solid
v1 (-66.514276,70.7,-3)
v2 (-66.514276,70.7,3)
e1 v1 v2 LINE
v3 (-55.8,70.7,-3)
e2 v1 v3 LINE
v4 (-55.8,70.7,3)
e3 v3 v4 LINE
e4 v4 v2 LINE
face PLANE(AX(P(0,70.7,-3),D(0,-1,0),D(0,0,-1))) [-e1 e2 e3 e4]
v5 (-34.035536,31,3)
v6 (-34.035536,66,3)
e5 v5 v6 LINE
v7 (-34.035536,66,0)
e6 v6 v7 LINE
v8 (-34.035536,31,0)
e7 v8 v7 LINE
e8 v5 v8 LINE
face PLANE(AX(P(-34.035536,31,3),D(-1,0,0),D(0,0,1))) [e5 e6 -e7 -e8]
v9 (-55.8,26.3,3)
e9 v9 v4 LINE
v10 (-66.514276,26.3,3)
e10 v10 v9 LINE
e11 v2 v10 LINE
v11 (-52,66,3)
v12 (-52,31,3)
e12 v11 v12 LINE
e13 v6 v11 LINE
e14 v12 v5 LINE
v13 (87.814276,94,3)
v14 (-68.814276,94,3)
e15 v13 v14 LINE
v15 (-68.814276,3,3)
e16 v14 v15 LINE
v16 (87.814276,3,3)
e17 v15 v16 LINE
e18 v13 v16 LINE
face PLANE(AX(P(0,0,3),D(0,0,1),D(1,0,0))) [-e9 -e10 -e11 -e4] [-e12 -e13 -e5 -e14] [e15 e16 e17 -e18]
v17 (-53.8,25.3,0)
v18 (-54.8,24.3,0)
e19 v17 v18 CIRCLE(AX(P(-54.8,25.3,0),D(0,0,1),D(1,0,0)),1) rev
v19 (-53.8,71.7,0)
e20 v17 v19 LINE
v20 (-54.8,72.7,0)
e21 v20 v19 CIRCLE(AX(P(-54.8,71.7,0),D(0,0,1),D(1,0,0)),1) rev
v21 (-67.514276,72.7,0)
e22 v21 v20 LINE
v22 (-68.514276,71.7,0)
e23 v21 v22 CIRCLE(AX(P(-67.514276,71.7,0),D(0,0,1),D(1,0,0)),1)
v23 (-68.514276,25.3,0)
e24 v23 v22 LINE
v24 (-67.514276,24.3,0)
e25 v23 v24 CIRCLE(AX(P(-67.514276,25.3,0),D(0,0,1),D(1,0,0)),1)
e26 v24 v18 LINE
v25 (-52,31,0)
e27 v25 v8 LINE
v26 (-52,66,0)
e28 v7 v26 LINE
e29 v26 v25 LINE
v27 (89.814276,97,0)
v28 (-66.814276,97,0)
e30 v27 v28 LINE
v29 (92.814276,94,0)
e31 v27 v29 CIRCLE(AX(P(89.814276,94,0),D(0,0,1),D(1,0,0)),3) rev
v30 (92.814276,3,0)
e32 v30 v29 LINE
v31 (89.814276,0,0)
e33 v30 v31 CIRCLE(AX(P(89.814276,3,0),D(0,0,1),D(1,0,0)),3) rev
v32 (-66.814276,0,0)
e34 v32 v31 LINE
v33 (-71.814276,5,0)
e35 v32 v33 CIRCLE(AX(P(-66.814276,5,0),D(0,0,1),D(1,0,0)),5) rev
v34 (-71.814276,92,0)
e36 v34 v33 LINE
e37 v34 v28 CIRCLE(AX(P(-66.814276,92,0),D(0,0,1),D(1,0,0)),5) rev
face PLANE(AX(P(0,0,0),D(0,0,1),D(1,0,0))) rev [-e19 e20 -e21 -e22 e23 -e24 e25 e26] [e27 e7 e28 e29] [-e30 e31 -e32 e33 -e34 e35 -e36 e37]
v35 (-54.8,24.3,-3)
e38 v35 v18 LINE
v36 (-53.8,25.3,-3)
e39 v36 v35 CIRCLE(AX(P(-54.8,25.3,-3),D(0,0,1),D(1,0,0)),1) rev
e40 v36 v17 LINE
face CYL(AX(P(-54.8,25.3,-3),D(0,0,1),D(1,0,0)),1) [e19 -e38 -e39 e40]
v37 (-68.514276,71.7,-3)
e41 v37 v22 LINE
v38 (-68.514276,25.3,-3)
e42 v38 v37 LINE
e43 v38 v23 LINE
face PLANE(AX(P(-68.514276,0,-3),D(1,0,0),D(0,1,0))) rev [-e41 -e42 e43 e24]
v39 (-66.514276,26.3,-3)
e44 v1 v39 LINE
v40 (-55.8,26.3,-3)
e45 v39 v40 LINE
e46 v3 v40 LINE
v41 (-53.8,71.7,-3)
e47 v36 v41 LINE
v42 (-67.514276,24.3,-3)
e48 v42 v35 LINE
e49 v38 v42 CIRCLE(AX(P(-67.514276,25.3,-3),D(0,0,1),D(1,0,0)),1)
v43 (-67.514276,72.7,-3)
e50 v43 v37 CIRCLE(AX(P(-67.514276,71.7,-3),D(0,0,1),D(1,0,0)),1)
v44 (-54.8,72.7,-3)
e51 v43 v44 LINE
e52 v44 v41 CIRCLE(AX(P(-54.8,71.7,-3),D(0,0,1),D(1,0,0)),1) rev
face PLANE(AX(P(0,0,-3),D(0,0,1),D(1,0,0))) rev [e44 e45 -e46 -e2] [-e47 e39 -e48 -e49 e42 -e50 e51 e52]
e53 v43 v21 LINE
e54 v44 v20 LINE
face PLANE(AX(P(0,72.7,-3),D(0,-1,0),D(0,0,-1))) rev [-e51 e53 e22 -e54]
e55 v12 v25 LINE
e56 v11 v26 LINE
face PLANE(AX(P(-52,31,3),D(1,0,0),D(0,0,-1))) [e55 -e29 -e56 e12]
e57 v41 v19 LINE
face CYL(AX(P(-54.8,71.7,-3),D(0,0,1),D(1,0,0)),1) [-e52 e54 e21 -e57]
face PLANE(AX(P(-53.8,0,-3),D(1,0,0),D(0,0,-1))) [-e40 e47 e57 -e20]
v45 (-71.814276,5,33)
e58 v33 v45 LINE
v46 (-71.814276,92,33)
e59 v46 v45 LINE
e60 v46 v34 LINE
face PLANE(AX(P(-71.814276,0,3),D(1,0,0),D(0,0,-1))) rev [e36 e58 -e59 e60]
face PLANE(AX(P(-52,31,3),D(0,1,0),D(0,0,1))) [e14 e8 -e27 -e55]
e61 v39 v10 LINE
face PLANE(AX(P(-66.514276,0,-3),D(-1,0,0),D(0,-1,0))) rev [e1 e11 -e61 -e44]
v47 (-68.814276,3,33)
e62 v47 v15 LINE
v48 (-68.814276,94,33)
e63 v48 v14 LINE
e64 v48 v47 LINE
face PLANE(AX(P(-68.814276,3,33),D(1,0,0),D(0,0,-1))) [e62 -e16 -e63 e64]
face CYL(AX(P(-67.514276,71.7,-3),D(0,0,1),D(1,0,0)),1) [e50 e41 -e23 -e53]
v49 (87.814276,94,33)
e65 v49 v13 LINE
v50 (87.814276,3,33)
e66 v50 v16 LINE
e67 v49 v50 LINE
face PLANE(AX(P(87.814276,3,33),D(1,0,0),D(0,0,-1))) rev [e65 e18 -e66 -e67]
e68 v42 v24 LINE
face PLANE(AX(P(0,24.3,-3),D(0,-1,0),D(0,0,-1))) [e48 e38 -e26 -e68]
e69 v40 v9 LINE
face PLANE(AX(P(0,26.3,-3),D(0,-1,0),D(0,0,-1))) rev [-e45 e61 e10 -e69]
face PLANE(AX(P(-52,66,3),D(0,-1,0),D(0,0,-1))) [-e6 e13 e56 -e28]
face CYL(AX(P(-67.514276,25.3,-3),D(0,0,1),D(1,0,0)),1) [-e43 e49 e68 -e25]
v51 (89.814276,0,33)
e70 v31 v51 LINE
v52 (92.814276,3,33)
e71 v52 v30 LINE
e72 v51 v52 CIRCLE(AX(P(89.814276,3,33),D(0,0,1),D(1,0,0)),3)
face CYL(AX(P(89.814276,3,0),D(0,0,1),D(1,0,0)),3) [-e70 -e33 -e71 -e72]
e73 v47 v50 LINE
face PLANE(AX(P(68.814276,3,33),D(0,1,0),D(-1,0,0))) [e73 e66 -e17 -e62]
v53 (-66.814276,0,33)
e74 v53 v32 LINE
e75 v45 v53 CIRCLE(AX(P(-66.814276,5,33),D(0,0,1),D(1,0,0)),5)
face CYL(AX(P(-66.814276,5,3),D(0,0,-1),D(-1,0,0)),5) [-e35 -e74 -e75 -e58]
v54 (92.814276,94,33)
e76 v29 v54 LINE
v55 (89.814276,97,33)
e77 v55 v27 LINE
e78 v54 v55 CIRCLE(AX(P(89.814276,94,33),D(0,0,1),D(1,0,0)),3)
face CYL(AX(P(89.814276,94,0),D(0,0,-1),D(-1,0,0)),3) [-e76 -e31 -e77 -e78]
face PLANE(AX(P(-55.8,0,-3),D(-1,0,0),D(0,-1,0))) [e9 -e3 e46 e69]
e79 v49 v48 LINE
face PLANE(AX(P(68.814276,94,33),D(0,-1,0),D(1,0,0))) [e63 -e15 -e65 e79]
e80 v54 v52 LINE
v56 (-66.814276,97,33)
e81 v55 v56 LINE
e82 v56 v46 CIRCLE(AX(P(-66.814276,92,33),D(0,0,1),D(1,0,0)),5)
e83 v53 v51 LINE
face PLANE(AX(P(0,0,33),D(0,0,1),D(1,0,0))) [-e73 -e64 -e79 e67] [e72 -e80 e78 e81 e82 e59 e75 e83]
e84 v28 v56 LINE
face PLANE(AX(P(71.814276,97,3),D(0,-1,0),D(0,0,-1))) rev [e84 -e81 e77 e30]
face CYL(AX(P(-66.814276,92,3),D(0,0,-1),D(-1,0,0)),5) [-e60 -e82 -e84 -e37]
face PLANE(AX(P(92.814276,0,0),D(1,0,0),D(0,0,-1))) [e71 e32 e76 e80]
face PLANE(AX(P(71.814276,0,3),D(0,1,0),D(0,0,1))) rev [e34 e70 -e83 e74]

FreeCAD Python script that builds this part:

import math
import FreeCAD as App
import Part
import Sketcher
Q = App.Units.Quantity


def edges_at(feature, points):
    """Names of the edges that pass closest to the given points."""
    edges = feature.Shape.Edges
    near = lambda p: min(range(len(edges)), key=lambda i: edges[i].distToShape(Part.Vertex(*p))[0])
    return sorted({f"Edge{near(p) + 1}" for p in points})

doc = App.newDocument("Part")
body = doc.addObject("PartDesign::Body", "Body")

# Sketch on XY plane
sketch1 = body.newObject("Sketcher::SketchObject", "Sketch")
sketch1.AttachmentSupport = (doc.getObject("XY_Plane"), [""])
sketch1.MapMode = "FlatFace"
sketch1.addGeometry(Part.ArcOfCircle(Part.Circle(App.Vector(-54.8, 71.7, 0), App.Vector(0, 0, 1), 1), math.radians(0), math.radians(90)), False)
sketch1.addGeometry(Part.LineSegment(App.Vector(-54.8, 72.7, 0), App.Vector(-67.5, 72.7, 0)), False)
sketch1.addGeometry(Part.ArcOfCircle(Part.Circle(App.Vector(-67.5, 71.7, 0), App.Vector(0, 0, 1), 1), math.radians(90), math.radians(180)), False)
sketch1.addGeometry(Part.LineSegment(App.Vector(-68.5, 71.7, 0), App.Vector(-68.5, 25.3, 0)), False)
sketch1.addGeometry(Part.ArcOfCircle(Part.Circle(App.Vector(-67.5, 25.3, 0), App.Vector(0, 0, 1), 1), math.radians(180), math.radians(270)), False)
sketch1.addGeometry(Part.LineSegment(App.Vector(-67.5, 24.3, 0), App.Vector(-54.8, 24.3, 0)), False)
sketch1.addGeometry(Part.ArcOfCircle(Part.Circle(App.Vector(-54.8, 25.3, 0), App.Vector(0, 0, 1), 1), math.radians(-90), math.radians(0)), False)
sketch1.addGeometry(Part.LineSegment(App.Vector(-53.8, 25.3, 0), App.Vector(-53.8, 71.7, 0)), False)
sketch1.addGeometry(Part.LineSegment(App.Vector(-66.5, 26.3, 0), App.Vector(-66.5, 70.7, 0)), False)
sketch1.addGeometry(Part.LineSegment(App.Vector(-66.5, 70.7, 0), App.Vector(-55.8, 70.7, 0)), False)
sketch1.addGeometry(Part.LineSegment(App.Vector(-55.8, 70.7, 0), App.Vector(-55.8, 26.3, 0)), False)
sketch1.addGeometry(Part.LineSegment(App.Vector(-55.8, 26.3, 0), App.Vector(-66.5, 26.3, 0)), False)
sketch1.addConstraint(Sketcher.Constraint("Tangent", 0, 2, 1, 1))
sketch1.addConstraint(Sketcher.Constraint("Tangent", 1, 2, 2, 1))
sketch1.addConstraint(Sketcher.Constraint("Tangent", 2, 2, 3, 1))
sketch1.addConstraint(Sketcher.Constraint("Tangent", 3, 2, 4, 1))
sketch1.addConstraint(Sketcher.Constraint("Tangent", 4, 2, 5, 1))
sketch1.addConstraint(Sketcher.Constraint("Tangent", 5, 2, 6, 1))
sketch1.addConstraint(Sketcher.Constraint("Tangent", 6, 2, 7, 1))
sketch1.addConstraint(Sketcher.Constraint("Tangent", 7, 2, 0, 1))
sketch1.addConstraint(Sketcher.Constraint("Coincident", 8, 2, 9, 1))
sketch1.addConstraint(Sketcher.Constraint("Coincident", 9, 2, 10, 1))
sketch1.addConstraint(Sketcher.Constraint("Coincident", 10, 2, 11, 1))
sketch1.addConstraint(Sketcher.Constraint("Coincident", 11, 2, 8, 1))
sketch1.addConstraint(Sketcher.Constraint("Horizontal", 1))
sketch1.addConstraint(Sketcher.Constraint("Vertical", 3))
sketch1.addConstraint(Sketcher.Constraint("Horizontal", 5))
sketch1.addConstraint(Sketcher.Constraint("Vertical", 7))
sketch1.addConstraint(Sketcher.Constraint("Vertical", 8))
sketch1.addConstraint(Sketcher.Constraint("Horizontal", 9))
sketch1.addConstraint(Sketcher.Constraint("Vertical", 10))
sketch1.addConstraint(Sketcher.Constraint("Horizontal", 11))
sketch1.addConstraint(Sketcher.Constraint("Equal", 0, 2))
sketch1.addConstraint(Sketcher.Constraint("Equal", 2, 4))
sketch1.addConstraint(Sketcher.Constraint("Equal", 4, 6))
sketch1.addConstraint(Sketcher.Constraint("Radius", 0, Q("1 mm")))
sketch1.addConstraint(Sketcher.Constraint("DistanceY", 3, 2, 3, 1, Q("46.4 mm")))
sketch1.addConstraint(Sketcher.Constraint("DistanceY", 8, 1, 8, 2, Q("44.4 mm")))
sketch1.addConstraint(Sketcher.Constraint("DistanceX", 2, 3, 8, 2, Q("1 mm")))
sketch1.addConstraint(Sketcher.Constraint("DistanceY", 8, 2, 2, 3, Q("1 mm")))
sketch1.addConstraint(Sketcher.Constraint("DistanceX", 9, 2, 0, 3, Q("1 mm")))
sketch1.addConstraint(Sketcher.Constraint("DistanceX", 0, 3, -1, 1, Q("54.8 mm")))
sketch1.addConstraint(Sketcher.Constraint("DistanceY", -1, 1, 0, 3, Q("71.7 mm")))
sketch1.addConstraint(Sketcher.Constraint("DistanceX", 1, 2, 1, 1, Q("12.714276 mm")))
pad1 = body.newObject("PartDesign::Pad", "Pad")
pad1.Profile = sketch1
pad1.Length = 3
pad1.Reversed = True
body2 = doc.addObject("PartDesign::Body", "Body001")

# Sketch on XY plane
sketch2 = body2.newObject("Sketcher::SketchObject", "Sketch001")
sketch2.AttachmentSupport = (doc.getObject("XY_Plane001"), [""])
sketch2.MapMode = "FlatFace"
sketch2.addGeometry(Part.ArcOfCircle(Part.Circle(App.Vector(67.5, 25.3, 0), App.Vector(0, 0, 1), 1), math.radians(-90), math.radians(0)), False)
sketch2.addGeometry(Part.LineSegment(App.Vector(68.5, 25.3, 0), App.Vector(68.5, 71.7, 0)), False)
sketch2.addGeometry(Part.ArcOfCircle(Part.Circle(App.Vector(67.5, 71.7, 0), App.Vector(0, 0, 1), 1), math.radians(0), math.radians(90)), False)
sketch2.addGeometry(Part.LineSegment(App.Vector(67.5, 72.7, 0), App.Vector(54.8, 72.7, 0)), False)
sketch2.addGeometry(Part.ArcOfCircle(Part.Circle(App.Vector(54.8, 71.7, 0), App.Vector(0, 0, 1), 1), math.radians(90), math.radians(180)), False)
sketch2.addGeometry(Part.LineSegment(App.Vector(53.8, 71.7, 0), App.Vector(53.8, 25.3, 0)), False)
sketch2.addGeometry(Part.ArcOfCircle(Part.Circle(App.Vector(54.8, 25.3, 0), App.Vector(0, 0, 1), 1), math.radians(-180), math.radians(-90)), False)
sketch2.addGeometry(Part.LineSegment(App.Vector(54.8, 24.3, 0), App.Vector(67.5, 24.3, 0)), False)
sketch2.addGeometry(Part.LineSegment(App.Vector(55.8, 26.3, 0), App.Vector(55.8, 70.7, 0)), False)
sketch2.addGeometry(Part.LineSegment(App.Vector(55.8, 70.7, 0), App.Vector(66.5, 70.7, 0)), False)
sketch2.addGeometry(Part.LineSegment(App.Vector(66.5, 70.7, 0), App.Vector(66.5, 26.3, 0)), False)
sketch2.addGeometry(Part.LineSegment(App.Vector(66.5, 26.3, 0), App.Vector(55.8, 26.3, 0)), False)
sketch2.addConstraint(Sketcher.Constraint("Tangent", 0, 2, 1, 1))
sketch2.addConstraint(Sketcher.Constraint("Tangent", 1, 2, 2, 1))
sketch2.addConstraint(Sketcher.Constraint("Tangent", 2, 2, 3, 1))
sketch2.addConstraint(Sketcher.Constraint("Tangent", 3, 2, 4, 1))
sketch2.addConstraint(Sketcher.Constraint("Tangent", 4, 2, 5, 1))
sketch2.addConstraint(Sketcher.Constraint("Tangent", 5, 2, 6, 1))
sketch2.addConstraint(Sketcher.Constraint("Tangent", 6, 2, 7, 1))
sketch2.addConstraint(Sketcher.Constraint("Tangent", 7, 2, 0, 1))
sketch2.addConstraint(Sketcher.Constraint("Coincident", 8, 2, 9, 1))
sketch2.addConstraint(Sketcher.Constraint("Coincident", 9, 2, 10, 1))
sketch2.addConstraint(Sketcher.Constraint("Coincident", 10, 2, 11, 1))
sketch2.addConstraint(Sketcher.Constraint("Coincident", 11, 2, 8, 1))
sketch2.addConstraint(Sketcher.Constraint("Vertical", 1))
sketch2.addConstraint(Sketcher.Constraint("Horizontal", 3))
sketch2.addConstraint(Sketcher.Constraint("Vertical", 5))
sketch2.addConstraint(Sketcher.Constraint("Horizontal", 7))
sketch2.addConstraint(Sketcher.Constraint("Vertical", 8))
sketch2.addConstraint(Sketcher.Constraint("Horizontal", 9))
sketch2.addConstraint(Sketcher.Constraint("Vertical", 10))
sketch2.addConstraint(Sketcher.Constraint("Horizontal", 11))
sketch2.addConstraint(Sketcher.Constraint("Equal", 0, 2))
sketch2.addConstraint(Sketcher.Constraint("Equal", 2, 4))
sketch2.addConstraint(Sketcher.Constraint("Equal", 4, 6))
sketch2.addConstraint(Sketcher.Constraint("Radius", 0, Q("1 mm")))
sketch2.addConstraint(Sketcher.Constraint("DistanceY", 1, 1, 1, 2, Q("46.4 mm")))
sketch2.addConstraint(Sketcher.Constraint("DistanceY", 8, 1, 8, 2, Q("44.4 mm")))
sketch2.addConstraint(Sketcher.Constraint("DistanceX", 4, 3, 8, 2, Q("1 mm")))
sketch2.addConstraint(Sketcher.Constraint("DistanceY", 8, 2, 4, 3, Q("1 mm")))
sketch2.addConstraint(Sketcher.Constraint("DistanceX", 9, 2, 2, 3, Q("1 mm")))
sketch2.addConstraint(Sketcher.Constraint("DistanceY", -1, 1, 0, 3, Q("25.3 mm")))
sketch2.addConstraint(Sketcher.Constraint("DistanceX", -1, 1, 4, 3, Q("54.8 mm")))
sketch2.addConstraint(Sketcher.Constraint("DistanceX", 3, 2, 3, 1, Q("12.714276 mm")))
pad2 = body2.newObject("PartDesign::Pad", "Pad001")
pad2.Profile = sketch2
pad2.Length = 3
pad2.Reversed = True
body.AllowCompound = True
doc.recompute()

boolean = body.newObject("PartDesign::Boolean", "Boolean")
boolean.Type = "Fuse"
boolean.addObjects([body2])

# Sketch on XY plane
sketch3 = body.newObject("Sketcher::SketchObject", "Sketch002")
sketch3.AttachmentSupport = (doc.getObject("XY_Plane"), [""])
sketch3.MapMode = "FlatFace"
sketch3.addGeometry(Part.LineSegment(App.Vector(-72, 97, 0), App.Vector(-72, 0, 0)), False)
sketch3.addGeometry(Part.LineSegment(App.Vector(-72, 0, 0), App.Vector(72, 0, 0)), False)
sketch3.addGeometry(Part.LineSegment(App.Vector(72, 0, 0), App.Vector(72, 97, 0)), False)
sketch3.addGeometry(Part.LineSegment(App.Vector(72, 97, 0), App.Vector(-72, 97, 0)), False)
sketch3.addGeometry(Part.LineSegment(App.Vector(-56, 26, 0), App.Vector(-67, 26, 0)), False)
sketch3.addGeometry(Part.LineSegment(App.Vector(-67, 26, 0), App.Vector(-67, 71, 0)), False)
sketch3.addGeometry(Part.LineSegment(App.Vector(-67, 71, 0), App.Vector(-56, 71, 0)), False)
sketch3.addGeometry(Part.LineSegment(App.Vector(-56, 71, 0), App.Vector(-56, 26, 0)), False)
sketch3.addGeometry(Part.LineSegment(App.Vector(-34, 31, 0), App.Vector(-52, 31, 0)), False)
sketch3.addGeometry(Part.LineSegment(App.Vector(-52, 31, 0), App.Vector(-52, 66, 0)), False)
sketch3.addGeometry(Part.LineSegment(App.Vector(-52, 66, 0), App.Vector(-34, 66, 0)), False)
sketch3.addGeometry(Part.LineSegment(App.Vector(-34, 66, 0), App.Vector(-34, 31, 0)), False)
sketch3.addGeometry(Part.LineSegment(App.Vector(67, 26, 0), App.Vector(56, 26, 0)), False)
sketch3.addGeometry(Part.LineSegment(App.Vector(56, 26, 0), App.Vector(56, 71, 0)), False)
sketch3.addGeometry(Part.LineSegment(App.Vector(56, 71, 0), App.Vector(67, 71, 0)), False)
sketch3.addGeometry(Part.LineSegment(App.Vector(67, 71, 0), App.Vector(67, 26, 0)), False)
sketch3.addConstraint(Sketcher.Constraint("Coincident", 0, 2, 1, 1))
sketch3.addConstraint(Sketcher.Constraint("Coincident", 1, 2, 2, 1))
sketch3.addConstraint(Sketcher.Constraint("Coincident", 2, 2, 3, 1))
sketch3.addConstraint(Sketcher.Constraint("Coincident", 3, 2, 0, 1))
sketch3.addConstraint(Sketcher.Constraint("Coincident", 4, 2, 5, 1))
sketch3.addConstraint(Sketcher.Constraint("Coincident", 5, 2, 6, 1))
sketch3.addConstraint(Sketcher.Constraint("Coincident", 6, 2, 7, 1))
sketch3.addConstraint(Sketcher.Constraint("Coincident", 7, 2, 4, 1))
sketch3.addConstraint(Sketcher.Constraint("Coincident", 8, 2, 9, 1))
sketch3.addConstraint(Sketcher.Constraint("Coincident", 9, 2, 10, 1))
sketch3.addConstraint(Sketcher.Constraint("Coincident", 10, 2, 11, 1))
sketch3.addConstraint(Sketcher.Constraint("Coincident", 11, 2, 8, 1))
sketch3.addConstraint(Sketcher.Constraint("Coincident", 12, 2, 13, 1))
sketch3.addConstraint(Sketcher.Constraint("Coincident", 13, 2, 14, 1))
sketch3.addConstraint(Sketcher.Constraint("Coincident", 14, 2, 15, 1))
sketch3.addConstraint(Sketcher.Constraint("Coincident", 15, 2, 12, 1))
sketch3.addConstraint(Sketcher.Constraint("Vertical", 0))
sketch3.addConstraint(Sketcher.Constraint("Horizontal", 1))
sketch3.addConstraint(Sketcher.Constraint("Vertical", 2))
sketch3.addConstraint(Sketcher.Constraint("Horizontal", 3))
sketch3.addConstraint(Sketcher.Constraint("Horizontal", 4))
sketch3.addConstraint(Sketcher.Constraint("Vertical", 5))
sketch3.addConstraint(Sketcher.Constraint("Horizontal", 6))
sketch3.addConstraint(Sketcher.Constraint("Vertical", 7))
sketch3.addConstraint(Sketcher.Constraint("Horizontal", 8))
sketch3.addConstraint(Sketcher.Constraint("Vertical", 9))
sketch3.addConstraint(Sketcher.Constraint("Horizontal", 10))
sketch3.addConstraint(Sketcher.Constraint("Vertical", 11))
sketch3.addConstraint(Sketcher.Constraint("Horizontal", 12))
sketch3.addConstraint(Sketcher.Constraint("Vertical", 13))
sketch3.addConstraint(Sketcher.Constraint("Horizontal", 14))
sketch3.addConstraint(Sketcher.Constraint("Vertical", 15))
sketch3.addConstraint(Sketcher.Constraint("Symmetric", 0, 2, 1, 2, -1, 1))
sketch3.addConstraint(Sketcher.Constraint("Symmetric", 7, 2, 12, 2, -2))
sketch3.addConstraint(Sketcher.Constraint("Symmetric", 5, 2, 14, 2, -2))
sketch3.addConstraint(Sketcher.Constraint("DistanceY", 0, 2, 0, 1, Q("97 mm")))
sketch3.addConstraint(Sketcher.Constraint("DistanceY", 9, 1, 9, 2, Q("35 mm")))
sketch3.addConstraint(Sketcher.Constraint("DistanceY", 5, 1, 5, 2, Q("44.4 mm")))
sketch3.addConstraint(Sketcher.Constraint("DistanceX", 8, 2, -1, 1, Q("52 mm")))
sketch3.addConstraint(Sketcher.Constraint("DistanceY", -1, 1, 8, 2, Q("31 mm")))
sketch3.addConstraint(Sketcher.Constraint("DistanceY", -1, 1, 4, 2, Q("26.3 mm")))
sketch3.addConstraint(Sketcher.Constraint("DistanceX", 6, 2, -1, 1, Q("55.8 mm")))
sketch3.addConstraint(Sketcher.Constraint("DistanceX", 0, 2, 4, 2, Q("5.3 mm")))
sketch3.addConstraint(Sketcher.Constraint("DistanceX", 1, 1, 1, 2, Q("143.628552 mm")))
sketch3.addConstraint(Sketcher.Constraint("DistanceX", 8, 2, 8, 1, Q("17.964464 mm")))
pad3 = body.newObject("PartDesign::Pad", "Pad002")
pad3.Profile = sketch3
pad3.Length = 3

# Sketch on XY plane
sketch4 = body.newObject("Sketcher::SketchObject", "Sketch003")
sketch4.AttachmentSupport = (doc.getObject("XY_Plane"), [""])
sketch4.MapMode = "FlatFace"
sketch4.AttachmentOffset = App.Placement(App.Vector(0, 0, 3), App.Rotation())
sketch4.addGeometry(Part.LineSegment(App.Vector(-72, 97, 0), App.Vector(-72, 0, 0)), False)
sketch4.addGeometry(Part.LineSegment(App.Vector(-72, 0, 0), App.Vector(72, 0, 0)), False)
sketch4.addGeometry(Part.LineSegment(App.Vector(72, 0, 0), App.Vector(72, 97, 0)), False)
sketch4.addGeometry(Part.LineSegment(App.Vector(72, 97, 0), App.Vector(-72, 97, 0)), False)
sketch4.addGeometry(Part.LineSegment(App.Vector(69, 3, 0), App.Vector(-69, 3, 0)), False)
sketch4.addGeometry(Part.LineSegment(App.Vector(-69, 3, 0), App.Vector(-69, 94, 0)), False)
sketch4.addGeometry(Part.LineSegment(App.Vector(-69, 94, 0), App.Vector(69, 94, 0)), False)
sketch4.addGeometry(Part.LineSegment(App.Vector(69, 94, 0), App.Vector(69, 3, 0)), False)
sketch4.addConstraint(Sketcher.Constraint("Coincident", 0, 2, 1, 1))
sketch4.addConstraint(Sketcher.Constraint("Coincident", 1, 2, 2, 1))
sketch4.addConstraint(Sketcher.Constraint("Coincident", 2, 2, 3, 1))
sketch4.addConstraint(Sketcher.Constraint("Coincident", 3, 2, 0, 1))
sketch4.addConstraint(Sketcher.Constraint("Coincident", 4, 2, 5, 1))
sketch4.addConstraint(Sketcher.Constraint("Coincident", 5, 2, 6, 1))
sketch4.addConstraint(Sketcher.Constraint("Coincident", 6, 2, 7, 1))
sketch4.addConstraint(Sketcher.Constraint("Coincident", 7, 2, 4, 1))
sketch4.addConstraint(Sketcher.Constraint("Vertical", 0))
sketch4.addConstraint(Sketcher.Constraint("Horizontal", 1))
sketch4.addConstraint(Sketcher.Constraint("Vertical", 2))
sketch4.addConstraint(Sketcher.Constraint("Horizontal", 3))
sketch4.addConstraint(Sketcher.Constraint("Horizontal", 4))
sketch4.addConstraint(Sketcher.Constraint("Vertical", 5))
sketch4.addConstraint(Sketcher.Constraint("Horizontal", 6))
sketch4.addConstraint(Sketcher.Constraint("Vertical", 7))
sketch4.addConstraint(Sketcher.Constraint("Symmetric", 0, 2, 1, 2, -1, 1))
sketch4.addConstraint(Sketcher.Constraint("DistanceY", 0, 2, 0, 1, Q("97 mm")))
sketch4.addConstraint(Sketcher.Constraint("DistanceY", 5, 1, 5, 2, Q("91 mm")))
sketch4.addConstraint(Sketcher.Constraint("DistanceY", -1, 1, 4, 2, Q("3 mm")))
sketch4.addConstraint(Sketcher.Constraint("DistanceX", 0, 2, 4, 2, Q("3 mm")))
sketch4.addConstraint(Sketcher.Constraint("DistanceX", 6, 2, 2, 2, Q("3 mm")))
sketch4.addConstraint(Sketcher.Constraint("DistanceX", 1, 1, 1, 2, Q("143.628552 mm")))
pad4 = body.newObject("PartDesign::Pad", "Pad003")
pad4.Profile = sketch4
pad4.Length = 30
doc.recompute()

fillet = body.newObject("PartDesign::Fillet", "Fillet")
fillet.Base = (pad4, edges_at(pad4, [
    (71.814, 0, 16.5),
    (71.814, 97, 16.5),
    (-71.814, 97, 16.5),
    (-71.814, 0, 16.5),
]))
fillet.Radius = 5

# Sketch on YZ plane
sketch5 = body.newObject("Sketcher::SketchObject", "Sketch004")
sketch5.AttachmentSupport = (doc.getObject("YZ_Plane"), [""])
sketch5.MapMode = "FlatFace"
sketch5.AttachmentOffset = App.Placement(App.Vector(0, 0, 71.814276), App.Rotation())
sketch5.addGeometry(Part.LineSegment(App.Vector(97, 35, 0), App.Vector(0, 35, 0)), False)
sketch5.addGeometry(Part.LineSegment(App.Vector(0, 35, 0), App.Vector(0, 0, 0)), False)
sketch5.addGeometry(Part.LineSegment(App.Vector(0, 0, 0), App.Vector(97, 0, 0)), False)
sketch5.addGeometry(Part.LineSegment(App.Vector(97, 0, 0), App.Vector(97, 35, 0)), False)
sketch5.addConstraint(Sketcher.Constraint("Coincident", 0, 2, 1, 1))
sketch5.addConstraint(Sketcher.Constraint("Coincident", 1, 2, 2, 1))
sketch5.addConstraint(Sketcher.Constraint("Coincident", 2, 2, 3, 1))
sketch5.addConstraint(Sketcher.Constraint("Coincident", 3, 2, 0, 1))
sketch5.addConstraint(Sketcher.Constraint("Horizontal", 0))
sketch5.addConstraint(Sketcher.Constraint("Vertical", 1))
sketch5.addConstraint(Sketcher.Constraint("Horizontal", 2))
sketch5.addConstraint(Sketcher.Constraint("Vertical", 3))
sketch5.addConstraint(Sketcher.Constraint("Coincident", 1, 2, -1, 1))
sketch5.addConstraint(Sketcher.Constraint("DistanceX", 0, 2, 0, 1, Q("97.224074 mm")))
sketch5.addConstraint(Sketcher.Constraint("DistanceY", 1, 2, 1, 1, Q("35.073436 mm")))
pocket1 = body.newObject("PartDesign::Pocket", "Pocket")
pocket1.Profile = sketch5
pocket1.Length = 5

# Sketch on XY plane
sketch6 = body.newObject("Sketcher::SketchObject", "Sketch005")
sketch6.AttachmentSupport = (doc.getObject("XY_Plane"), [""])
sketch6.MapMode = "FlatFace"
sketch6.addGeometry(Part.LineSegment(App.Vector(67.5, 24.3, 0), App.Vector(54.8, 24.3, 0)), False)
sketch6.addGeometry(Part.ArcOfCircle(Part.Circle(App.Vector(54.8, 25.3, 0), App.Vector(0, 0, 1), 1), math.radians(-180), math.radians(-90)), False)
sketch6.addGeometry(Part.LineSegment(App.Vector(53.8, 25.3, 0), App.Vector(53.8, 71.7, 0)), False)
sketch6.addGeometry(Part.ArcOfCircle(Part.Circle(App.Vector(54.8, 71.7, 0), App.Vector(0, 0, 1), 1), math.radians(90), math.radians(180)), False)
sketch6.addGeometry(Part.LineSegment(App.Vector(54.8, 72.7, 0), App.Vector(67.5, 72.7, 0)), False)
sketch6.addGeometry(Part.ArcOfCircle(Part.Circle(App.Vector(67.5, 71.7, 0), App.Vector(0, 0, 1), 1), math.radians(0), math.radians(90)), False)
sketch6.addGeometry(Part.LineSegment(App.Vector(68.5, 71.7, 0), App.Vector(68.5, 25.3, 0)), False)
sketch6.addGeometry(Part.ArcOfCircle(Part.Circle(App.Vector(67.5, 25.3, 0), App.Vector(0, 0, 1), 1), math.radians(-90), math.radians(0)), False)
sketch6.addGeometry(Part.LineSegment(App.Vector(55.8, 26.3, 0), App.Vector(66.5, 26.3, 0)), False)
sketch6.addGeometry(Part.LineSegment(App.Vector(66.5, 26.3, 0), App.Vector(66.5, 70.7, 0)), False)
sketch6.addGeometry(Part.LineSegment(App.Vector(66.5, 70.7, 0), App.Vector(55.8, 70.7, 0)), False)
sketch6.addGeometry(Part.LineSegment(App.Vector(55.8, 70.7, 0), App.Vector(55.8, 26.3, 0)), False)
sketch6.addConstraint(Sketcher.Constraint("Tangent", 0, 2, 1, 2))
sketch6.addConstraint(Sketcher.Constraint("Tangent", 1, 1, 2, 1))
sketch6.addConstraint(Sketcher.Constraint("Tangent", 2, 2, 3, 2))
sketch6.addConstraint(Sketcher.Constraint("Tangent", 3, 1, 4, 1))
sketch6.addConstraint(Sketcher.Constraint("Tangent", 4, 2, 5, 2))
sketch6.addConstraint(Sketcher.Constraint("Tangent", 5, 1, 6, 1))
sketch6.addConstraint(Sketcher.Constraint("Tangent", 6, 2, 7, 2))
sketch6.addConstraint(Sketcher.Constraint("Tangent", 7, 1, 0, 1))
sketch6.addConstraint(Sketcher.Constraint("Coincident", 8, 2, 9, 1))
sketch6.addConstraint(Sketcher.Constraint("Coincident", 9, 2, 10, 1))
sketch6.addConstraint(Sketcher.Constraint("Coincident", 10, 2, 11, 1))
sketch6.addConstraint(Sketcher.Constraint("Coincident", 11, 2, 8, 1))
sketch6.addConstraint(Sketcher.Constraint("Horizontal", 0))
sketch6.addConstraint(Sketcher.Constraint("Vertical", 2))
sketch6.addConstraint(Sketcher.Constraint("Horizontal", 4))
sketch6.addConstraint(Sketcher.Constraint("Vertical", 6))
sketch6.addConstraint(Sketcher.Constraint("Horizontal", 8))
sketch6.addConstraint(Sketcher.Constraint("Vertical", 9))
sketch6.addConstraint(Sketcher.Constraint("Horizontal", 10))
sketch6.addConstraint(Sketcher.Constraint("Vertical", 11))
sketch6.addConstraint(Sketcher.Constraint("Equal", 1, 3))
sketch6.addConstraint(Sketcher.Constraint("Equal", 3, 5))
sketch6.addConstraint(Sketcher.Constraint("Equal", 5, 7))
sketch6.addConstraint(Sketcher.Constraint("Radius", 1, Q("1 mm")))
sketch6.addConstraint(Sketcher.Constraint("DistanceY", 2, 1, 2, 2, Q("46.4 mm")))
sketch6.addConstraint(Sketcher.Constraint("DistanceY", 9, 1, 9, 2, Q("44.4 mm")))
sketch6.addConstraint(Sketcher.Constraint("DistanceX", 8, 2, 7, 3, Q("1 mm")))
sketch6.addConstraint(Sketcher.Constraint("DistanceY", 7, 3, 8, 2, Q("1 mm")))
sketch6.addConstraint(Sketcher.Constraint("DistanceX", 3, 3, 10, 2, Q("1 mm")))
sketch6.addConstraint(Sketcher.Constraint("DistanceX", -1, 1, 1, 3, Q("54.8 mm")))
sketch6.addConstraint(Sketcher.Constraint("DistanceY", -1, 1, 1, 3, Q("25.3 mm")))
sketch6.addConstraint(Sketcher.Constraint("DistanceX", 0, 2, 0, 1, Q("12.714276 mm")))
pocket2 = body.newObject("PartDesign::Pocket", "Pocket001")
pocket2.Profile = sketch6
pocket2.Length = 3

# Sketch on YZ plane
sketch7 = body.newObject("Sketcher::SketchObject", "Sketch006")
sketch7.AttachmentSupport = (doc.getObject("YZ_Plane"), [""])
sketch7.MapMode = "FlatFace"
sketch7.AttachmentOffset = App.Placement(App.Vector(0, 0, 55.8), App.Rotation())
sketch7.addGeometry(Part.LineSegment(App.Vector(70.7, 3, 0), App.Vector(26.3, 3, 0)), False)
sketch7.addGeometry(Part.LineSegment(App.Vector(26.3, 3, 0), App.Vector(26.3, 0, 0)), False)
sketch7.addGeometry(Part.LineSegment(App.Vector(26.3, 0, 0), App.Vector(70.7, 0, 0)), False)
sketch7.addGeometry(Part.LineSegment(App.Vector(70.7, 0, 0), App.Vector(70.7, 3, 0)), False)
sketch7.addConstraint(Sketcher.Constraint("Coincident", 0, 2, 1, 1))
sketch7.addConstraint(Sketcher.Constraint("Coincident", 1, 2, 2, 1))
sketch7.addConstraint(Sketcher.Constraint("Coincident", 2, 2, 3, 1))
sketch7.addConstraint(Sketcher.Constraint("Coincident", 3, 2, 0, 1))
sketch7.addConstraint(Sketcher.Constraint("Horizontal", 0))
sketch7.addConstraint(Sketcher.Constraint("Vertical", 1))
sketch7.addConstraint(Sketcher.Constraint("Horizontal", 2))
sketch7.addConstraint(Sketcher.Constraint("Vertical", 3))
sketch7.addConstraint(Sketcher.Constraint("PointOnObject", 1, 2, -1))
sketch7.addConstraint(Sketcher.Constraint("DistanceY", 1, 2, 1, 1, Q("3 mm")))
sketch7.addConstraint(Sketcher.Constraint("DistanceX", 0, 2, 0, 1, Q("44.4 mm")))
sketch7.addConstraint(Sketcher.Constraint("DistanceX", -1, 1, 0, 2, Q("26.3 mm")))
pad5 = body.newObject("PartDesign::Pad", "Pad004")
pad5.Profile = sketch7
pad5.Length = 11

# Sketch on YZ plane
sketch8 = body.newObject("Sketcher::SketchObject", "Sketch007")
sketch8.AttachmentSupport = (doc.getObject("YZ_Plane"), [""])
sketch8.MapMode = "FlatFace"
sketch8.AttachmentOffset = App.Placement(App.Vector(0, 0, 66.814276), App.Rotation())
sketch8.addGeometry(Part.LineSegment(App.Vector(0, 33, 0), App.Vector(0, 0, 0)), False)
sketch8.addGeometry(Part.LineSegment(App.Vector(0, 0, 0), App.Vector(97, 0, 0)), False)
sketch8.addGeometry(Part.LineSegment(App.Vector(97, 0, 0), App.Vector(97, 33, 0)), False)
sketch8.addGeometry(Part.LineSegment(App.Vector(97, 33, 0), App.Vector(94, 33, 0)), False)
sketch8.addGeometry(Part.LineSegment(App.Vector(94, 33, 0), App.Vector(94, 3, 0)), False)
sketch8.addGeometry(Part.LineSegment(App.Vector(94, 3, 0), App.Vector(3, 3, 0)), False)
sketch8.addGeometry(Part.LineSegment(App.Vector(3, 3, 0), App.Vector(3, 33, 0)), False)
sketch8.addGeometry(Part.LineSegment(App.Vector(3, 33, 0), App.Vector(0, 33, 0)), False)
sketch8.addConstraint(Sketcher.Constraint("Coincident", 0, 2, 1, 1))
sketch8.addConstraint(Sketcher.Constraint("Coincident", 1, 2, 2, 1))
sketch8.addConstraint(Sketcher.Constraint("Coincident", 2, 2, 3, 1))
sketch8.addConstraint(Sketcher.Constraint("Coincident", 3, 2, 4, 1))
sketch8.addConstraint(Sketcher.Constraint("Coincident", 4, 2, 5, 1))
sketch8.addConstraint(Sketcher.Constraint("Coincident", 5, 2, 6, 1))
sketch8.addConstraint(Sketcher.Constraint("Coincident", 6, 2, 7, 1))
sketch8.addConstraint(Sketcher.Constraint("Coincident", 7, 2, 0, 1))
sketch8.addConstraint(Sketcher.Constraint("Vertical", 0))
sketch8.addConstraint(Sketcher.Constraint("Horizontal", 1))
sketch8.addConstraint(Sketcher.Constraint("Vertical", 2))
sketch8.addConstraint(Sketcher.Constraint("Horizontal", 3))
sketch8.addConstraint(Sketcher.Constraint("Vertical", 4))
sketch8.addConstraint(Sketcher.Constraint("Horizontal", 5))
sketch8.addConstraint(Sketcher.Constraint("Vertical", 6))
sketch8.addConstraint(Sketcher.Constraint("Horizontal", 7))
sketch8.addConstraint(Sketcher.Constraint("Coincident", 0, 2, -1, 1))
sketch8.addConstraint(Sketcher.Constraint("Horizontal", 3, 2, 6, 2))
sketch8.addConstraint(Sketcher.Constraint("Equal", 3, 7))
sketch8.addConstraint(Sketcher.Constraint("DistanceX", 1, 1, 1, 2, Q("97 mm")))
sketch8.addConstraint(Sketcher.Constraint("DistanceX", 3, 2, 3, 1, Q("3 mm")))
sketch8.addConstraint(Sketcher.Constraint("DistanceY", 0, 2, 0, 1, Q("33 mm")))
sketch8.addConstraint(Sketcher.Constraint("DistanceY", 4, 2, 4, 1, Q("30 mm")))
pad6 = body.newObject("PartDesign::Pad", "Pad005")
pad6.Profile = sketch8
pad6.Length = 26

# Sketch on XY plane
sketch9 = body.newObject("Sketcher::SketchObject", "Sketch008")
sketch9.AttachmentSupport = (doc.getObject("XY_Plane"), [""])
sketch9.MapMode = "FlatFace"
sketch9.AttachmentOffset = App.Placement(App.Vector(0, 0, 3), App.Rotation())
sketch9.addGeometry(Part.LineSegment(App.Vector(88, 94, 0), App.Vector(88, 3, 0)), False)
sketch9.addGeometry(Part.LineSegment(App.Vector(88, 3, 0), App.Vector(93, 3, 0)), False)
sketch9.addGeometry(Part.LineSegment(App.Vector(93, 3, 0), App.Vector(93, 94, 0)), False)
sketch9.addGeometry(Part.LineSegment(App.Vector(93, 94, 0), App.Vector(88, 94, 0)), False)
sketch9.addConstraint(Sketcher.Constraint("Coincident", 0, 2, 1, 1))
sketch9.addConstraint(Sketcher.Constraint("Coincident", 1, 2, 2, 1))
sketch9.addConstraint(Sketcher.Constraint("Coincident", 2, 2, 3, 1))
sketch9.addConstraint(Sketcher.Constraint("Coincident", 3, 2, 0, 1))
sketch9.addConstraint(Sketcher.Constraint("Vertical", 0))
sketch9.addConstraint(Sketcher.Constraint("Horizontal", 1))
sketch9.addConstraint(Sketcher.Constraint("Vertical", 2))
sketch9.addConstraint(Sketcher.Constraint("Horizontal", 3))
sketch9.addConstraint(Sketcher.Constraint("DistanceX", 1, 1, 1, 2, Q("5 mm")))
sketch9.addConstraint(Sketcher.Constraint("DistanceY", 0, 2, 0, 1, Q("91 mm")))
sketch9.addConstraint(Sketcher.Constraint("DistanceY", -1, 1, 0, 2, Q("3 mm")))
sketch9.addConstraint(Sketcher.Constraint("DistanceX", -1, 1, 0, 2, Q("87.814276 mm")))
pad7 = body.newObject("PartDesign::Pad", "Pad006")
pad7.Profile = sketch9
pad7.Length = 30
doc.recompute()

fillet2 = body.newObject("PartDesign::Fillet", "Fillet001")
fillet2.Base = (pad7, edges_at(pad7, [(92.814, 0, 16.5), (92.814, 97, 16.5)]))
fillet2.Radius = 3

doc.recompute()
